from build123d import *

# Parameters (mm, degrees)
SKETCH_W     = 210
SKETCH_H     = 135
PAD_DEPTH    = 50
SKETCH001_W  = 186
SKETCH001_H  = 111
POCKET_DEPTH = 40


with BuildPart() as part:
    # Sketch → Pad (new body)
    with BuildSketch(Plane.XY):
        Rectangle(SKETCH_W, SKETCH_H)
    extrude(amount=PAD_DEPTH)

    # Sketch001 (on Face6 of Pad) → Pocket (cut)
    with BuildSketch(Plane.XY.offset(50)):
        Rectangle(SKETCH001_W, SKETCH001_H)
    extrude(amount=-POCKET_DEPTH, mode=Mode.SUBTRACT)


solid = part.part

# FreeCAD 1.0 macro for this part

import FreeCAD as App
import Part
import Sketcher
Q = App.Units.Quantity

doc = App.newDocument("Part")
body = doc.addObject("PartDesign::Body", "Body")

# Sketch on XY plane
sketch1 = body.newObject("Sketcher::SketchObject", "Sketch")
sketch1.AttachmentSupport = (doc.getObject("XY_Plane"), [""])
sketch1.MapMode = "FlatFace"
sketch1.addGeometry([
    Part.LineSegment(App.Vector(-105, 67.5, 0), App.Vector(-105, -67.5, 0)),
    Part.LineSegment(App.Vector(-105, -67.5, 0), App.Vector(105, -67.5, 0)),
    Part.LineSegment(App.Vector(105, -67.5, 0), App.Vector(105, 67.5, 0)),
    Part.LineSegment(App.Vector(105, 67.5, 0), App.Vector(-105, 67.5, 0)),
], False)
sketch1.addConstraint([
    Sketcher.Constraint("Coincident", 0, 2, 1, 1),
    Sketcher.Constraint("Coincident", 1, 2, 2, 1),
    Sketcher.Constraint("Coincident", 2, 2, 3, 1),
    Sketcher.Constraint("Coincident", 3, 2, 0, 1),
    Sketcher.Constraint("Vertical", 0),
    Sketcher.Constraint("Horizontal", 1),
    Sketcher.Constraint("Vertical", 2),
    Sketcher.Constraint("Horizontal", 3),
    Sketcher.Constraint("Symmetric", 0, 2, 2, 2, -1, 1),
    Sketcher.Constraint("DistanceX", 1, 1, 1, 2, Q("210 mm")),
    Sketcher.Constraint("DistanceY", 0, 2, 0, 1, Q("135 mm")),
])
pad1 = body.newObject("PartDesign::Pad", "Pad")
pad1.Profile = sketch1
pad1.Length = 50

# Sketch on XY plane
sketch2 = body.newObject("Sketcher::SketchObject", "Sketch001")
sketch2.AttachmentSupport = (doc.getObject("XY_Plane"), [""])
sketch2.MapMode = "FlatFace"
sketch2.AttachmentOffset = App.Placement(App.Vector(0, 0, 50), App.Rotation())
sketch2.addGeometry([
    Part.LineSegment(App.Vector(-93, 55.5, 0), App.Vector(-93, -55.5, 0)),
    Part.LineSegment(App.Vector(-93, -55.5, 0), App.Vector(93, -55.5, 0)),
    Part.LineSegment(App.Vector(93, -55.5, 0), App.Vector(93, 55.5, 0)),
    Part.LineSegment(App.Vector(93, 55.5, 0), App.Vector(-93, 55.5, 0)),
], False)
sketch2.addConstraint([
    Sketcher.Constraint("Coincident", 0, 2, 1, 1),
    Sketcher.Constraint("Coincident", 1, 2, 2, 1),
    Sketcher.Constraint("Coincident", 2, 2, 3, 1),
    Sketcher.Constraint("Coincident", 3, 2, 0, 1),
    Sketcher.Constraint("Vertical", 0),
    Sketcher.Constraint("Horizontal", 1),
    Sketcher.Constraint("Vertical", 2),
    Sketcher.Constraint("Horizontal", 3),
    Sketcher.Constraint("Symmetric", 0, 2, 2, 2, -1, 1),
    Sketcher.Constraint("DistanceX", 1, 1, 1, 2, Q("186 mm")),
    Sketcher.Constraint("DistanceY", 0, 2, 0, 1, Q("111 mm")),
])
pocket1 = body.newObject("PartDesign::Pocket", "Pocket")
pocket1.Profile = sketch2
pocket1.Length = 40

doc.recompute()
